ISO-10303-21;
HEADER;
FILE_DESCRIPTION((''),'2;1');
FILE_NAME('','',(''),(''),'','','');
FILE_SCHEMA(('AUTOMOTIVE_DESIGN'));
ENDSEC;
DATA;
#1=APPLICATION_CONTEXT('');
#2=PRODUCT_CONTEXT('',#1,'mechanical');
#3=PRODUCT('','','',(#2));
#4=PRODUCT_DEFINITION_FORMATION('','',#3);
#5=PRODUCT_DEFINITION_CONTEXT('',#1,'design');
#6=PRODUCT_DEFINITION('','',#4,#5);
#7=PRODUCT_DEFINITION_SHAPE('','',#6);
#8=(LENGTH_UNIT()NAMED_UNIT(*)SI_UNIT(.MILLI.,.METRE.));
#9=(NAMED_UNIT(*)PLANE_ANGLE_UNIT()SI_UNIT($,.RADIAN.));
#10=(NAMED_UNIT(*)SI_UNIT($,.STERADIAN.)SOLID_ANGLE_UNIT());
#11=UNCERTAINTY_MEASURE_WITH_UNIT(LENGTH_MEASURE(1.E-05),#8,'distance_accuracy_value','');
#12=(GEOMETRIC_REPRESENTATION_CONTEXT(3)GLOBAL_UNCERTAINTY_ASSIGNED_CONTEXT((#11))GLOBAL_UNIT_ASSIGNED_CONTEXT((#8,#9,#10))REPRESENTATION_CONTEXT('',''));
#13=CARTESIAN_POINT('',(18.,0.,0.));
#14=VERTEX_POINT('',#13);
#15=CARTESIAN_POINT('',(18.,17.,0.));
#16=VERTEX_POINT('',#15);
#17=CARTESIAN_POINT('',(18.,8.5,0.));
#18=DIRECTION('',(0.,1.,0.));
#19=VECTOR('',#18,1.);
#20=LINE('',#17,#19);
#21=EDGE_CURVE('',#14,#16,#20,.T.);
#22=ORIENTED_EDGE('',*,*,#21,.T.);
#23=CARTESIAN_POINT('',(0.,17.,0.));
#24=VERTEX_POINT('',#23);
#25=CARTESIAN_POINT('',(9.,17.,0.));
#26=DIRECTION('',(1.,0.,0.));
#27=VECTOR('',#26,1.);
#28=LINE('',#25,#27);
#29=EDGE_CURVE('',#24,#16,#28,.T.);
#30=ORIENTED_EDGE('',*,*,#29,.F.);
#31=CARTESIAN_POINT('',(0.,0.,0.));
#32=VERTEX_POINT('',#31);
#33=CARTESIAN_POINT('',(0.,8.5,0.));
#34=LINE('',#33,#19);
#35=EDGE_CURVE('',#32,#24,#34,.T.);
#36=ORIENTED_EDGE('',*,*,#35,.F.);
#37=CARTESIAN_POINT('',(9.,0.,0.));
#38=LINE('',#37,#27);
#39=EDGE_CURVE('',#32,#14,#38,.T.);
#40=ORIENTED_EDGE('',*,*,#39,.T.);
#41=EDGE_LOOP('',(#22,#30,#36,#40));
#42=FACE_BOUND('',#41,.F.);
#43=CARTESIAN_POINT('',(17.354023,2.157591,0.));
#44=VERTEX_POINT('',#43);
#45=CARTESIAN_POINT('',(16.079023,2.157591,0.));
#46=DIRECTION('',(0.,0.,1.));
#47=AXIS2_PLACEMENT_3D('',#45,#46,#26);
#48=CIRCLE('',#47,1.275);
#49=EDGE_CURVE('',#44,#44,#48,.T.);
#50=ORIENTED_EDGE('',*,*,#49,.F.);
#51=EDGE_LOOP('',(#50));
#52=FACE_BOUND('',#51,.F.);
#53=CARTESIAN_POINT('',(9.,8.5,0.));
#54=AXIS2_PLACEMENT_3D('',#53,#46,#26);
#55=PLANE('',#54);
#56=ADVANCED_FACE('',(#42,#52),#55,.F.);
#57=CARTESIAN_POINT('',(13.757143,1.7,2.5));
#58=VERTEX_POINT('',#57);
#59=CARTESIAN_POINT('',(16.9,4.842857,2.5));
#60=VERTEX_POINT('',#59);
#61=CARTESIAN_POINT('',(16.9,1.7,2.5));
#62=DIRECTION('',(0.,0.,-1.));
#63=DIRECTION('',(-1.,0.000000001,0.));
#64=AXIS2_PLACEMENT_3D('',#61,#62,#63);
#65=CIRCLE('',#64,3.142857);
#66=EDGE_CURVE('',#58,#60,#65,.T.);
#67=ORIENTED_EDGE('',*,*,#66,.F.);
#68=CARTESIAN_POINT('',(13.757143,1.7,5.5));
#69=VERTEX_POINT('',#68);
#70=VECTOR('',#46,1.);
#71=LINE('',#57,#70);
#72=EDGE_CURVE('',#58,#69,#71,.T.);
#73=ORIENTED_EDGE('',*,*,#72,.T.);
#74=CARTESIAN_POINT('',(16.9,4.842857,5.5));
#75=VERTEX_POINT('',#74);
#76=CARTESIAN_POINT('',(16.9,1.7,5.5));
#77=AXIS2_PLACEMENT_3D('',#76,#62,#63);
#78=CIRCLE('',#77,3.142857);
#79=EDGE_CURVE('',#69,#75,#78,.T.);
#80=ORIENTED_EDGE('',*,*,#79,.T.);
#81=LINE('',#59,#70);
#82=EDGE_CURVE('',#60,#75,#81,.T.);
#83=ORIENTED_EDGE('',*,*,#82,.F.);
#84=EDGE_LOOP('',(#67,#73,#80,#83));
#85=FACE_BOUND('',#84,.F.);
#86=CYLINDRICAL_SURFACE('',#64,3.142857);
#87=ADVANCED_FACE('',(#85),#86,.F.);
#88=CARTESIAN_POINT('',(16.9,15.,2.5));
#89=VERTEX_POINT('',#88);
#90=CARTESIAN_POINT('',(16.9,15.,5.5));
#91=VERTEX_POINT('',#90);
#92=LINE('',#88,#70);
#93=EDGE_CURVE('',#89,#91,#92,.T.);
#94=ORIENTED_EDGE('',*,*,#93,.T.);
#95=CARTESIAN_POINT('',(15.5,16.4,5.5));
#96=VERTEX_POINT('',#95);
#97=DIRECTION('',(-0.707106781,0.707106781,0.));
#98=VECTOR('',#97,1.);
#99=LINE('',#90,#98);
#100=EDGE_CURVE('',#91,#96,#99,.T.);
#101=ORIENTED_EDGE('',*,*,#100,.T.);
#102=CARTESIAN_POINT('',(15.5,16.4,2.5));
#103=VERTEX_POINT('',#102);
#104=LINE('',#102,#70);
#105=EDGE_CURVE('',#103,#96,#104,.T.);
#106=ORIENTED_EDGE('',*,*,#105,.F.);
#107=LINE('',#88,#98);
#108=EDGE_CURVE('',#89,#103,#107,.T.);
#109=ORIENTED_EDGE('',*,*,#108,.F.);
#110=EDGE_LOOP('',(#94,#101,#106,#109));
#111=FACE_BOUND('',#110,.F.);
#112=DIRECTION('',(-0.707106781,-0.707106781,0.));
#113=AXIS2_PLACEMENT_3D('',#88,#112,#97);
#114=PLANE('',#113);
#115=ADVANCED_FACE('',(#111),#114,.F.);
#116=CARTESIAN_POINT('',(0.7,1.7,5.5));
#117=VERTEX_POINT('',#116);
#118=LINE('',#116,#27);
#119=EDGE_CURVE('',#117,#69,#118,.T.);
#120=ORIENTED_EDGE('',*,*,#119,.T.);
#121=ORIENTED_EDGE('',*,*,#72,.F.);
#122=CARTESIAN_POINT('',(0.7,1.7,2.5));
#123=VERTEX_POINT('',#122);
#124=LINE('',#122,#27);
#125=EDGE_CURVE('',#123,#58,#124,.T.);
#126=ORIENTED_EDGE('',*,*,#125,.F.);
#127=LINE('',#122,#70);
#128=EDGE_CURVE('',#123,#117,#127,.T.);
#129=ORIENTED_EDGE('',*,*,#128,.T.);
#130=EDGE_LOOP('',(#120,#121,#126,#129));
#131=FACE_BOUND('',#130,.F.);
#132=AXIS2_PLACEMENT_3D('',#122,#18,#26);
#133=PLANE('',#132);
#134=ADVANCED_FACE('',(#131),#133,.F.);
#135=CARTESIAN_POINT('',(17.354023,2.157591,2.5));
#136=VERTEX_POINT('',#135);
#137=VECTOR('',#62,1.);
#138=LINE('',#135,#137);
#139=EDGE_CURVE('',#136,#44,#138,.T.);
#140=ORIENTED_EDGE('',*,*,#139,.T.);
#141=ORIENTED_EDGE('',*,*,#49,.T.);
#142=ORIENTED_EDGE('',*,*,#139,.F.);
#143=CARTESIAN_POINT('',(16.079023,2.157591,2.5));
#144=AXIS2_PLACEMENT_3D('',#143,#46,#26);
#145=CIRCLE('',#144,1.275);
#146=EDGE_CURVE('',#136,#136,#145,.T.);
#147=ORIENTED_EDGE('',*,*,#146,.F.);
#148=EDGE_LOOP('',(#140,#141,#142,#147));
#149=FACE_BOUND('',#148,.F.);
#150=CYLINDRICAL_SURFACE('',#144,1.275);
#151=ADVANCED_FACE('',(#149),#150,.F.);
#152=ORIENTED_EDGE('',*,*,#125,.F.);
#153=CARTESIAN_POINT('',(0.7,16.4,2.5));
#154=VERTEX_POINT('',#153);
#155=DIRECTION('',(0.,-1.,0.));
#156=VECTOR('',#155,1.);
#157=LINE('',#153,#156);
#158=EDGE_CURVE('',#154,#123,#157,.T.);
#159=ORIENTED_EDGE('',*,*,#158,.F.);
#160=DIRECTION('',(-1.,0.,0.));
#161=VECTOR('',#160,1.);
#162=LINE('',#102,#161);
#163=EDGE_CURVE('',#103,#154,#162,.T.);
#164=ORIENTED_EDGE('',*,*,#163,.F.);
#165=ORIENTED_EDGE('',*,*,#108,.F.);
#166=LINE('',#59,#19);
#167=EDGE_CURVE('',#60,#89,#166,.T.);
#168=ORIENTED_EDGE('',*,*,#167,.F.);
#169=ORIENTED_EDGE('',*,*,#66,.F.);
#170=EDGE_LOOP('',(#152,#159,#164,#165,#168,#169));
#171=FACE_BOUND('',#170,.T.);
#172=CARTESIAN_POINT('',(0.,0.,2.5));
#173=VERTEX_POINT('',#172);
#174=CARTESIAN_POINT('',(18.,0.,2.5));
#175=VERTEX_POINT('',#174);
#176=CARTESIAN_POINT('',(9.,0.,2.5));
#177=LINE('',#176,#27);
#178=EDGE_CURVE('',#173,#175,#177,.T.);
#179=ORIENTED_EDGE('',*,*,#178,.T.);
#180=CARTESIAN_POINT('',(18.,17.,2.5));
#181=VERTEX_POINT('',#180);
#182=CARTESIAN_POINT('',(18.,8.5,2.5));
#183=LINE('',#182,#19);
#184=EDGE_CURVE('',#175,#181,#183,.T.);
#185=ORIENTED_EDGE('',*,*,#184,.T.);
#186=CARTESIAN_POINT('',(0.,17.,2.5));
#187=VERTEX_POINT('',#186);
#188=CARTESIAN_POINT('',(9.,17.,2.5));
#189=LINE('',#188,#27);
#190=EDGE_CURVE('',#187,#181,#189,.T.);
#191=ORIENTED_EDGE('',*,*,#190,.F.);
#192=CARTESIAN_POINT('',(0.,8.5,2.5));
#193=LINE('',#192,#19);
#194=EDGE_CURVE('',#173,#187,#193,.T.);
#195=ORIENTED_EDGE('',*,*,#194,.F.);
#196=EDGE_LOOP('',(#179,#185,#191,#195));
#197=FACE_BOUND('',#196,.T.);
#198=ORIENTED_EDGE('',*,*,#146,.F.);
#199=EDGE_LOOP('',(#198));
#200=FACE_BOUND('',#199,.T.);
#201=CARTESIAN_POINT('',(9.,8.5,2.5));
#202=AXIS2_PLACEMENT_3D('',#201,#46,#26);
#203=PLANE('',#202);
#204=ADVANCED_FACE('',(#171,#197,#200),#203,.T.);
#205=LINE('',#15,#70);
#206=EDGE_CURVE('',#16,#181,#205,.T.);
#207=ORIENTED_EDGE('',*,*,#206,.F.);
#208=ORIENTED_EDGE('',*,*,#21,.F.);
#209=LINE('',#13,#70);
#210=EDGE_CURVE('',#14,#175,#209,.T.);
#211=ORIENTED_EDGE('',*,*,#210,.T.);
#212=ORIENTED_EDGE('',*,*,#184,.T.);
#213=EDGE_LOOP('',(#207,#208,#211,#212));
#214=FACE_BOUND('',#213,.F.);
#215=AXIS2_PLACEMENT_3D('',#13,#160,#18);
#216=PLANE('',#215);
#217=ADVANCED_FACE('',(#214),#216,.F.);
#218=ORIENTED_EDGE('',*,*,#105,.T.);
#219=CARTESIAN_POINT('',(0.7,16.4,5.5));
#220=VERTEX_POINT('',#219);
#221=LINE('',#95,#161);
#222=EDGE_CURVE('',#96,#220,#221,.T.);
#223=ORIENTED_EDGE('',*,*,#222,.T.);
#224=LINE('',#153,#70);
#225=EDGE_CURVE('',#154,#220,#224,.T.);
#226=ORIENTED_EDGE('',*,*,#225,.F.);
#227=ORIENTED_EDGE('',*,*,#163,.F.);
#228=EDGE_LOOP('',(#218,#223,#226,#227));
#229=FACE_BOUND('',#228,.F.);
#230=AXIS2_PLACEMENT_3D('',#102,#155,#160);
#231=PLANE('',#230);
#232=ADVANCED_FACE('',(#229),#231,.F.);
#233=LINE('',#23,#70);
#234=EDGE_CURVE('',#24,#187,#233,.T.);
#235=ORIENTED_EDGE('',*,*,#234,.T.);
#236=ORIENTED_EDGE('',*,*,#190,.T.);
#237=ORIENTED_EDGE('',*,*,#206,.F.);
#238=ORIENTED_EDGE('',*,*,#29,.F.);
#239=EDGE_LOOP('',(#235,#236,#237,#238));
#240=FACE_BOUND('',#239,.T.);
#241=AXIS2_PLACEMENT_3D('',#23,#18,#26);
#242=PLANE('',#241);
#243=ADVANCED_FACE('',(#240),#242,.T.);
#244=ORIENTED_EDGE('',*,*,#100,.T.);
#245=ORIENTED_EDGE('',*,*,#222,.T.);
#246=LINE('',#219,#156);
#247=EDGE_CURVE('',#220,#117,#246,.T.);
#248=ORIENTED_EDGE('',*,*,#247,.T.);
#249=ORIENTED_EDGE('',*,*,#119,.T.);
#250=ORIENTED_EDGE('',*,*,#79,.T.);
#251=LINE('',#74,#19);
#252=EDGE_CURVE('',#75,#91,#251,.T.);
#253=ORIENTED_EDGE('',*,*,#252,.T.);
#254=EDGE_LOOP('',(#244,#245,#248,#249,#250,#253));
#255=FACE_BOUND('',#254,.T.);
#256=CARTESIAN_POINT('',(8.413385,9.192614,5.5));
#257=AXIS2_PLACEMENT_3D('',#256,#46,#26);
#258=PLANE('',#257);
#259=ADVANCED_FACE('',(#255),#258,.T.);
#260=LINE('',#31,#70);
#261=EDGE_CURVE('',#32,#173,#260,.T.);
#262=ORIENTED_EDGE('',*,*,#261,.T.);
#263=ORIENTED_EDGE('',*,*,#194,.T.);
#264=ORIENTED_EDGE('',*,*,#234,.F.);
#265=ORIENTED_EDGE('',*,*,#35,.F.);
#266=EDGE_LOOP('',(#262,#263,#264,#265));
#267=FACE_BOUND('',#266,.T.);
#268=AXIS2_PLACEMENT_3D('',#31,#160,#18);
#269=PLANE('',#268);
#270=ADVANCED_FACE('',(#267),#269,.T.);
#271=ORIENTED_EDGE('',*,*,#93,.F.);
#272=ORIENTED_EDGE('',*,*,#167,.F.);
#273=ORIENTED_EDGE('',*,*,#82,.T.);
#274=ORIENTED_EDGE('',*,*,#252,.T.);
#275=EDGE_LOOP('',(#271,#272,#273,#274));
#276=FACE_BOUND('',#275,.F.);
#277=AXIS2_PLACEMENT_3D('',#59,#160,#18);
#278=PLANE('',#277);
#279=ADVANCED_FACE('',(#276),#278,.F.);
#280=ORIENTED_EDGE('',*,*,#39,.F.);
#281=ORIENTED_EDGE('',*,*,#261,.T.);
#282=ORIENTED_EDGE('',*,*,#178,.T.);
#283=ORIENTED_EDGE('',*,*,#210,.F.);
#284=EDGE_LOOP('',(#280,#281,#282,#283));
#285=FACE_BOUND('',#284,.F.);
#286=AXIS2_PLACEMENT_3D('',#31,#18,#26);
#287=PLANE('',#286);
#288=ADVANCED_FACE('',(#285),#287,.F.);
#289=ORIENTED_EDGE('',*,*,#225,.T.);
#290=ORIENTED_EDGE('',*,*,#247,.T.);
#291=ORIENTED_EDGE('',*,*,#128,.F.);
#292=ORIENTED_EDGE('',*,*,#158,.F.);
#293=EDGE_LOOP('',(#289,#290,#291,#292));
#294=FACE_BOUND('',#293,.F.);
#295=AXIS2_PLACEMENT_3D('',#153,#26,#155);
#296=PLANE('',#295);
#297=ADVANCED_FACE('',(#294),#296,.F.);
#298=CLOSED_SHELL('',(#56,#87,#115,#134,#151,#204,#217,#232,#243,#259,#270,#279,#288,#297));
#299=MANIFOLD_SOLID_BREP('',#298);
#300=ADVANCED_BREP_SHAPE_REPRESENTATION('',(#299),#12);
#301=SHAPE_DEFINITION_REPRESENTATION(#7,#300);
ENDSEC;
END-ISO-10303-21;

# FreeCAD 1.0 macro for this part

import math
import FreeCAD as App
import Part
import Sketcher
Q = App.Units.Quantity


def add_polygon(sketch, points):
    """Adds a closed chain of lines whose ends are joined by coincident constraints."""
    first, n = sketch.GeometryCount, len(points)
    for a, b in zip(points, points[1:] + points[:1]):
        sketch.addGeometry(Part.LineSegment(App.Vector(*a, 0), App.Vector(*b, 0)), False)
    for i in range(n):
        sketch.addConstraint(Sketcher.Constraint("Coincident", first + i, 2, first + (i + 1) % n, 1))

doc = App.newDocument("Part")
body = doc.addObject("PartDesign::Body", "Body")

# Sketch on XY plane
sketch1 = doc.addObject("Sketcher::SketchObject", "Sketch")
body.addObject(sketch1)
sketch1.AttachmentSupport = (doc.XY_Plane, [""])
sketch1.MapMode = "FlatFace"
add_polygon(sketch1, [(0, 17), (0, 0), (18, 0), (18, 17)])  # lines 0-3
sketch1.addConstraint([
    Sketcher.Constraint("Vertical", 0),
    Sketcher.Constraint("Horizontal", 1),
    Sketcher.Constraint("Vertical", 2),
    Sketcher.Constraint("Horizontal", 3),
    Sketcher.Constraint("Coincident", 0, 2, -1, 1),
    Sketcher.Constraint("DistanceX", 1, 1, 1, 2, Q("18 mm")),
    Sketcher.Constraint("DistanceY", 0, 2, 0, 1, Q("17 mm")),
])
pad1 = doc.addObject("PartDesign::Pad", "Pad")
body.addObject(pad1)
pad1.Profile = sketch1
pad1.Length = 2.5

# Sketch on XY plane
sketch2 = doc.addObject("Sketcher::SketchObject", "Sketch001")
body.addObject(sketch2)
sketch2.AttachmentSupport = (doc.XY_Plane, [""])
sketch2.MapMode = "FlatFace"
sketch2.AttachmentOffset = App.Placement(App.Vector(0, 0, 2.5), App.Rotation())
sketch2.addGeometry([
    Part.LineSegment(App.Vector(0.7, 16.4, 0), App.Vector(0.7, 1.7, 0)),  # 0
    Part.LineSegment(App.Vector(0.7, 1.7, 0), App.Vector(13.8, 1.7, 0)),  # 1
    Part.ArcOfCircle(Part.Circle(App.Vector(16.9, 1.7, 0), App.Vector(0, 0, 1), 3.1), math.radians(90), math.radians(180)),  # 2
    Part.LineSegment(App.Vector(16.9, 4.8, 0), App.Vector(16.9, 15, 0)),  # 3
    Part.LineSegment(App.Vector(16.9, 15, 0), App.Vector(15.5, 16.4, 0)),  # 4
    Part.LineSegment(App.Vector(15.5, 16.4, 0), App.Vector(0.7, 16.4, 0)),  # 5
], False)
sketch2.addConstraint([
    Sketcher.Constraint("Coincident", 0, 2, 1, 1),
    Sketcher.Constraint("Coincident", 1, 2, 2, 2),
    Sketcher.Constraint("Coincident", 2, 1, 3, 1),
    Sketcher.Constraint("Coincident", 3, 2, 4, 1),
    Sketcher.Constraint("Coincident", 4, 2, 5, 1),
    Sketcher.Constraint("Coincident", 5, 2, 0, 1),
    Sketcher.Constraint("Vertical", 0),
    Sketcher.Constraint("Horizontal", 1),
    Sketcher.Constraint("Vertical", 3),
    Sketcher.Constraint("Horizontal", 5),
    Sketcher.Constraint("Horizontal", 2, 3, 0, 2),
    Sketcher.Constraint("Angle", 4, Q("135 deg")),
    Sketcher.Constraint("DistanceX", 5, 2, 5, 1, Q("14.8 mm")),
    Sketcher.Constraint("DistanceY", 0, 2, 0, 1, Q("14.7 mm")),
    Sketcher.Constraint("DistanceY", -1, 1, 3, 2, Q("15 mm")),
    Sketcher.Constraint("DistanceX", -1, 1, 2, 3, Q("16.9 mm")),
    Sketcher.Constraint("DistanceY", -1, 1, 2, 3, Q("1.7 mm")),
    Sketcher.Constraint("DistanceX", -1, 1, 0, 2, Q("0.7 mm")),
    Sketcher.Constraint("Radius", 2, Q("3.142857 mm")),
])
pad2 = doc.addObject("PartDesign::Pad", "Pad001")
body.addObject(pad2)
pad2.Profile = sketch2
pad2.Length = 3

# Sketch on XY plane
sketch3 = doc.addObject("Sketcher::SketchObject", "Sketch002")
body.addObject(sketch3)
sketch3.AttachmentSupport = (doc.XY_Plane, [""])
sketch3.MapMode = "FlatFace"
sketch3.AttachmentOffset = App.Placement(App.Vector(0, 0, 2.5), App.Rotation())
sketch3.addGeometry(Part.Circle(App.Vector(16.1, 2.2, 0), App.Vector(0, 0, 1), 1.3), False)
sketch3.addConstraint([
    Sketcher.Constraint("Diameter", 0, Q("2.55 mm")),
    Sketcher.Constraint("DistanceY", -1, 1, 0, 3, Q("2.157591 mm")),
    Sketcher.Constraint("DistanceX", -1, 1, 0, 3, Q("16.079023 mm")),
])
pocket1 = doc.addObject("PartDesign::Pocket", "Pocket")
body.addObject(pocket1)
pocket1.Profile = sketch3
pocket1.Type = "ThroughAll"

doc.recompute()
